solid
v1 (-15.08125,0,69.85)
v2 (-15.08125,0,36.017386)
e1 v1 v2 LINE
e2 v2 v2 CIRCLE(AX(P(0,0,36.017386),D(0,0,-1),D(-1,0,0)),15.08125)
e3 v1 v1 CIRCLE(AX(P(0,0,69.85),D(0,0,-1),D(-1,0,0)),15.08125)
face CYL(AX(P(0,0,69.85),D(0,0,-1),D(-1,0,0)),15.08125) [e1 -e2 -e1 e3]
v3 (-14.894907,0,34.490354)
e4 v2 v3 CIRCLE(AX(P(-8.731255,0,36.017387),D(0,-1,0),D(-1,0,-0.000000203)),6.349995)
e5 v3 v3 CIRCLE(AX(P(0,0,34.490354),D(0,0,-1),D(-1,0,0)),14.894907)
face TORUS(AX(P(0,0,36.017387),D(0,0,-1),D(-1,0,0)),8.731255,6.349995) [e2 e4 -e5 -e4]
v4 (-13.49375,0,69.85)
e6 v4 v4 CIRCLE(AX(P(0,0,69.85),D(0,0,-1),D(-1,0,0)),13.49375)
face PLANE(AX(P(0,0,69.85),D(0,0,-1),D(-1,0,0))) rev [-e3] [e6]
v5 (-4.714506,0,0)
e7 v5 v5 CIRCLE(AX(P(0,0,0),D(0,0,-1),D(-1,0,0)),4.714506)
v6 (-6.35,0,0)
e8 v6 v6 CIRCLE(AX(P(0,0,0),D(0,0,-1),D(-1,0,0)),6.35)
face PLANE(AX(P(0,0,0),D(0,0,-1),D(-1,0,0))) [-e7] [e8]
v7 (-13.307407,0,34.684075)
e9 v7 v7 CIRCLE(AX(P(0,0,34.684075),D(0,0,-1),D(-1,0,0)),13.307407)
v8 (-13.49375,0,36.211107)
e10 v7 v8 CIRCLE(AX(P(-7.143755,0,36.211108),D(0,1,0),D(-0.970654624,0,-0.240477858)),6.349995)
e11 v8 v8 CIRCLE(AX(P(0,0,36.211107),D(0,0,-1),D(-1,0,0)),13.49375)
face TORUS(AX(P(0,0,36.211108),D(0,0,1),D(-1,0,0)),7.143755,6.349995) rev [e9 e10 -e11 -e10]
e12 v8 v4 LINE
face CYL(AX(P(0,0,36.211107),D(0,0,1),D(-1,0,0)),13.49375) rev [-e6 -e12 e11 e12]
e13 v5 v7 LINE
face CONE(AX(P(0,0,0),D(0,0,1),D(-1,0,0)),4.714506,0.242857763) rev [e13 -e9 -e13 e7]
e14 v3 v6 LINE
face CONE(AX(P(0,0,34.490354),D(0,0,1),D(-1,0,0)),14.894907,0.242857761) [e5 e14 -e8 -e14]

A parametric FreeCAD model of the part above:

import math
import FreeCAD as App
import Part
import Sketcher
Q = App.Units.Quantity

doc = App.newDocument("Part")
body = doc.addObject("PartDesign::Body", "Body")

# Sketch on XZ plane
sketch1 = body.newObject("Sketcher::SketchObject", "Sketch")
sketch1.AttachmentSupport = (doc.getObject("XZ_Plane"), [""])
sketch1.MapMode = "FlatFace"
sketch1.addGeometry(Part.LineSegment(App.Vector(-15.08125, 69.85, 0), App.Vector(-15.08125, 36.017386, 0)), False)
sketch1.addGeometry(Part.ArcOfCircle(Part.Circle(App.Vector(-8.731255, 36.017387, 0), App.Vector(0, 0, 1), 6.349995), math.radians(-179.999988), math.radians(-166.085254)), False)
sketch1.addGeometry(Part.LineSegment(App.Vector(-14.894907, 34.490354, 0), App.Vector(-6.35, 0, 0)), False)
sketch1.addGeometry(Part.LineSegment(App.Vector(-6.35, 0, 0), App.Vector(-4.714506, 0, 0)), False)
sketch1.addGeometry(Part.LineSegment(App.Vector(-4.714506, 0, 0), App.Vector(-13.307407, 34.684075, 0)), False)
sketch1.addGeometry(Part.ArcOfCircle(Part.Circle(App.Vector(-7.143755, 36.211108, 0), App.Vector(0, 0, 1), 6.349995), math.radians(-179.999988), math.radians(-166.085254)), False)
sketch1.addGeometry(Part.LineSegment(App.Vector(-13.49375, 36.211107, 0), App.Vector(-13.49375, 69.85, 0)), False)
sketch1.addGeometry(Part.LineSegment(App.Vector(-13.49375, 69.85, 0), App.Vector(-15.08125, 69.85, 0)), False)
sketch1.addConstraint(Sketcher.Constraint("Tangent", 0, 2, 1, 1))
sketch1.addConstraint(Sketcher.Constraint("Tangent", 1, 2, 2, 1))
sketch1.addConstraint(Sketcher.Constraint("Coincident", 2, 2, 3, 1))
sketch1.addConstraint(Sketcher.Constraint("Coincident", 3, 2, 4, 1))
sketch1.addConstraint(Sketcher.Constraint("Tangent", 4, 2, 5, 2))
sketch1.addConstraint(Sketcher.Constraint("Tangent", 5, 1, 6, 1))
sketch1.addConstraint(Sketcher.Constraint("Coincident", 6, 2, 7, 1))
sketch1.addConstraint(Sketcher.Constraint("Coincident", 7, 2, 0, 1))
sketch1.addConstraint(Sketcher.Constraint("Vertical", 0))
sketch1.addConstraint(Sketcher.Constraint("Horizontal", 3))
sketch1.addConstraint(Sketcher.Constraint("Vertical", 6))
sketch1.addConstraint(Sketcher.Constraint("Horizontal", 7))
sketch1.addConstraint(Sketcher.Constraint("Equal", 1, 5))
sketch1.addConstraint(Sketcher.Constraint("PointOnObject", 2, 2, -1))
sketch1.addConstraint(Sketcher.Constraint("Parallel", 2, 4))
sketch1.addConstraint(Sketcher.Constraint("Radius", 1, Q("0.2499998 in")))
sketch1.addConstraint(Sketcher.Constraint("DistanceX", 7, 2, 7, 1, Q("0.0625 in")))
sketch1.addConstraint(Sketcher.Constraint("DistanceX", 2, 2, -1, 1, Q("0.25 in")))
sketch1.addConstraint(Sketcher.Constraint("DistanceY", -1, 1, 6, 2, Q("2.75 in")))
sketch1.addConstraint(Sketcher.Constraint("DistanceX", 0, 2, -1, 1, Q("0.59375 in")))
sketch1.addConstraint(Sketcher.Constraint("DistanceX", 1, 2, 3, 2, Q("10.180401 mm")))
sketch1.addConstraint(Sketcher.Constraint("Distance", 4, Q("35.73266 mm")))
revolution = body.newObject("PartDesign::Revolution", "Revolution")
revolution.Profile = sketch1
revolution.ReferenceAxis = (sketch1, ["V_Axis"])
revolution.Angle = 360

doc.recompute()
